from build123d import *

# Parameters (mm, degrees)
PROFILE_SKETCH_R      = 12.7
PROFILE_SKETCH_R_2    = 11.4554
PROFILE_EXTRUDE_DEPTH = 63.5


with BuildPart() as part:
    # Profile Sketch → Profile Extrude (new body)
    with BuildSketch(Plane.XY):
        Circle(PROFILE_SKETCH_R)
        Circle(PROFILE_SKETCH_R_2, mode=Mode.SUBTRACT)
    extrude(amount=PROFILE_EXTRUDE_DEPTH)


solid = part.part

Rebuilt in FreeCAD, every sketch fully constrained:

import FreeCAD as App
import Part
import Sketcher
Q = App.Units.Quantity

doc = App.newDocument("Part")
body = doc.addObject("PartDesign::Body", "Body")

sketch1 = body.newObject("Sketcher::SketchObject", "Sketch")
sketch1.AttachmentSupport = (doc.getObject("XY_Plane"), [""])
sketch1.MapMode = "FlatFace"
sketch1.addGeometry(Part.Circle(App.Vector(0, 0, 0), App.Vector(0, 0, 1), 13), False)
sketch1.addGeometry(Part.Circle(App.Vector(0, 0, 0), App.Vector(0, 0, 1), 11), False)
sketch1.addConstraint(Sketcher.Constraint("Coincident", 0, 3, -1, 1))
sketch1.addConstraint(Sketcher.Constraint("Coincident", 1, 3, -1, 1))
sketch1.addConstraint(Sketcher.Constraint("Diameter", 0, Q("1 in")))
sketch1.addConstraint(Sketcher.Constraint("Diameter", 1, Q("0.902 in")))
pad1 = body.newObject("PartDesign::Pad", "Pad")
pad1.Profile = sketch1
pad1.Length = Q("2.5 in")

doc.recompute()
